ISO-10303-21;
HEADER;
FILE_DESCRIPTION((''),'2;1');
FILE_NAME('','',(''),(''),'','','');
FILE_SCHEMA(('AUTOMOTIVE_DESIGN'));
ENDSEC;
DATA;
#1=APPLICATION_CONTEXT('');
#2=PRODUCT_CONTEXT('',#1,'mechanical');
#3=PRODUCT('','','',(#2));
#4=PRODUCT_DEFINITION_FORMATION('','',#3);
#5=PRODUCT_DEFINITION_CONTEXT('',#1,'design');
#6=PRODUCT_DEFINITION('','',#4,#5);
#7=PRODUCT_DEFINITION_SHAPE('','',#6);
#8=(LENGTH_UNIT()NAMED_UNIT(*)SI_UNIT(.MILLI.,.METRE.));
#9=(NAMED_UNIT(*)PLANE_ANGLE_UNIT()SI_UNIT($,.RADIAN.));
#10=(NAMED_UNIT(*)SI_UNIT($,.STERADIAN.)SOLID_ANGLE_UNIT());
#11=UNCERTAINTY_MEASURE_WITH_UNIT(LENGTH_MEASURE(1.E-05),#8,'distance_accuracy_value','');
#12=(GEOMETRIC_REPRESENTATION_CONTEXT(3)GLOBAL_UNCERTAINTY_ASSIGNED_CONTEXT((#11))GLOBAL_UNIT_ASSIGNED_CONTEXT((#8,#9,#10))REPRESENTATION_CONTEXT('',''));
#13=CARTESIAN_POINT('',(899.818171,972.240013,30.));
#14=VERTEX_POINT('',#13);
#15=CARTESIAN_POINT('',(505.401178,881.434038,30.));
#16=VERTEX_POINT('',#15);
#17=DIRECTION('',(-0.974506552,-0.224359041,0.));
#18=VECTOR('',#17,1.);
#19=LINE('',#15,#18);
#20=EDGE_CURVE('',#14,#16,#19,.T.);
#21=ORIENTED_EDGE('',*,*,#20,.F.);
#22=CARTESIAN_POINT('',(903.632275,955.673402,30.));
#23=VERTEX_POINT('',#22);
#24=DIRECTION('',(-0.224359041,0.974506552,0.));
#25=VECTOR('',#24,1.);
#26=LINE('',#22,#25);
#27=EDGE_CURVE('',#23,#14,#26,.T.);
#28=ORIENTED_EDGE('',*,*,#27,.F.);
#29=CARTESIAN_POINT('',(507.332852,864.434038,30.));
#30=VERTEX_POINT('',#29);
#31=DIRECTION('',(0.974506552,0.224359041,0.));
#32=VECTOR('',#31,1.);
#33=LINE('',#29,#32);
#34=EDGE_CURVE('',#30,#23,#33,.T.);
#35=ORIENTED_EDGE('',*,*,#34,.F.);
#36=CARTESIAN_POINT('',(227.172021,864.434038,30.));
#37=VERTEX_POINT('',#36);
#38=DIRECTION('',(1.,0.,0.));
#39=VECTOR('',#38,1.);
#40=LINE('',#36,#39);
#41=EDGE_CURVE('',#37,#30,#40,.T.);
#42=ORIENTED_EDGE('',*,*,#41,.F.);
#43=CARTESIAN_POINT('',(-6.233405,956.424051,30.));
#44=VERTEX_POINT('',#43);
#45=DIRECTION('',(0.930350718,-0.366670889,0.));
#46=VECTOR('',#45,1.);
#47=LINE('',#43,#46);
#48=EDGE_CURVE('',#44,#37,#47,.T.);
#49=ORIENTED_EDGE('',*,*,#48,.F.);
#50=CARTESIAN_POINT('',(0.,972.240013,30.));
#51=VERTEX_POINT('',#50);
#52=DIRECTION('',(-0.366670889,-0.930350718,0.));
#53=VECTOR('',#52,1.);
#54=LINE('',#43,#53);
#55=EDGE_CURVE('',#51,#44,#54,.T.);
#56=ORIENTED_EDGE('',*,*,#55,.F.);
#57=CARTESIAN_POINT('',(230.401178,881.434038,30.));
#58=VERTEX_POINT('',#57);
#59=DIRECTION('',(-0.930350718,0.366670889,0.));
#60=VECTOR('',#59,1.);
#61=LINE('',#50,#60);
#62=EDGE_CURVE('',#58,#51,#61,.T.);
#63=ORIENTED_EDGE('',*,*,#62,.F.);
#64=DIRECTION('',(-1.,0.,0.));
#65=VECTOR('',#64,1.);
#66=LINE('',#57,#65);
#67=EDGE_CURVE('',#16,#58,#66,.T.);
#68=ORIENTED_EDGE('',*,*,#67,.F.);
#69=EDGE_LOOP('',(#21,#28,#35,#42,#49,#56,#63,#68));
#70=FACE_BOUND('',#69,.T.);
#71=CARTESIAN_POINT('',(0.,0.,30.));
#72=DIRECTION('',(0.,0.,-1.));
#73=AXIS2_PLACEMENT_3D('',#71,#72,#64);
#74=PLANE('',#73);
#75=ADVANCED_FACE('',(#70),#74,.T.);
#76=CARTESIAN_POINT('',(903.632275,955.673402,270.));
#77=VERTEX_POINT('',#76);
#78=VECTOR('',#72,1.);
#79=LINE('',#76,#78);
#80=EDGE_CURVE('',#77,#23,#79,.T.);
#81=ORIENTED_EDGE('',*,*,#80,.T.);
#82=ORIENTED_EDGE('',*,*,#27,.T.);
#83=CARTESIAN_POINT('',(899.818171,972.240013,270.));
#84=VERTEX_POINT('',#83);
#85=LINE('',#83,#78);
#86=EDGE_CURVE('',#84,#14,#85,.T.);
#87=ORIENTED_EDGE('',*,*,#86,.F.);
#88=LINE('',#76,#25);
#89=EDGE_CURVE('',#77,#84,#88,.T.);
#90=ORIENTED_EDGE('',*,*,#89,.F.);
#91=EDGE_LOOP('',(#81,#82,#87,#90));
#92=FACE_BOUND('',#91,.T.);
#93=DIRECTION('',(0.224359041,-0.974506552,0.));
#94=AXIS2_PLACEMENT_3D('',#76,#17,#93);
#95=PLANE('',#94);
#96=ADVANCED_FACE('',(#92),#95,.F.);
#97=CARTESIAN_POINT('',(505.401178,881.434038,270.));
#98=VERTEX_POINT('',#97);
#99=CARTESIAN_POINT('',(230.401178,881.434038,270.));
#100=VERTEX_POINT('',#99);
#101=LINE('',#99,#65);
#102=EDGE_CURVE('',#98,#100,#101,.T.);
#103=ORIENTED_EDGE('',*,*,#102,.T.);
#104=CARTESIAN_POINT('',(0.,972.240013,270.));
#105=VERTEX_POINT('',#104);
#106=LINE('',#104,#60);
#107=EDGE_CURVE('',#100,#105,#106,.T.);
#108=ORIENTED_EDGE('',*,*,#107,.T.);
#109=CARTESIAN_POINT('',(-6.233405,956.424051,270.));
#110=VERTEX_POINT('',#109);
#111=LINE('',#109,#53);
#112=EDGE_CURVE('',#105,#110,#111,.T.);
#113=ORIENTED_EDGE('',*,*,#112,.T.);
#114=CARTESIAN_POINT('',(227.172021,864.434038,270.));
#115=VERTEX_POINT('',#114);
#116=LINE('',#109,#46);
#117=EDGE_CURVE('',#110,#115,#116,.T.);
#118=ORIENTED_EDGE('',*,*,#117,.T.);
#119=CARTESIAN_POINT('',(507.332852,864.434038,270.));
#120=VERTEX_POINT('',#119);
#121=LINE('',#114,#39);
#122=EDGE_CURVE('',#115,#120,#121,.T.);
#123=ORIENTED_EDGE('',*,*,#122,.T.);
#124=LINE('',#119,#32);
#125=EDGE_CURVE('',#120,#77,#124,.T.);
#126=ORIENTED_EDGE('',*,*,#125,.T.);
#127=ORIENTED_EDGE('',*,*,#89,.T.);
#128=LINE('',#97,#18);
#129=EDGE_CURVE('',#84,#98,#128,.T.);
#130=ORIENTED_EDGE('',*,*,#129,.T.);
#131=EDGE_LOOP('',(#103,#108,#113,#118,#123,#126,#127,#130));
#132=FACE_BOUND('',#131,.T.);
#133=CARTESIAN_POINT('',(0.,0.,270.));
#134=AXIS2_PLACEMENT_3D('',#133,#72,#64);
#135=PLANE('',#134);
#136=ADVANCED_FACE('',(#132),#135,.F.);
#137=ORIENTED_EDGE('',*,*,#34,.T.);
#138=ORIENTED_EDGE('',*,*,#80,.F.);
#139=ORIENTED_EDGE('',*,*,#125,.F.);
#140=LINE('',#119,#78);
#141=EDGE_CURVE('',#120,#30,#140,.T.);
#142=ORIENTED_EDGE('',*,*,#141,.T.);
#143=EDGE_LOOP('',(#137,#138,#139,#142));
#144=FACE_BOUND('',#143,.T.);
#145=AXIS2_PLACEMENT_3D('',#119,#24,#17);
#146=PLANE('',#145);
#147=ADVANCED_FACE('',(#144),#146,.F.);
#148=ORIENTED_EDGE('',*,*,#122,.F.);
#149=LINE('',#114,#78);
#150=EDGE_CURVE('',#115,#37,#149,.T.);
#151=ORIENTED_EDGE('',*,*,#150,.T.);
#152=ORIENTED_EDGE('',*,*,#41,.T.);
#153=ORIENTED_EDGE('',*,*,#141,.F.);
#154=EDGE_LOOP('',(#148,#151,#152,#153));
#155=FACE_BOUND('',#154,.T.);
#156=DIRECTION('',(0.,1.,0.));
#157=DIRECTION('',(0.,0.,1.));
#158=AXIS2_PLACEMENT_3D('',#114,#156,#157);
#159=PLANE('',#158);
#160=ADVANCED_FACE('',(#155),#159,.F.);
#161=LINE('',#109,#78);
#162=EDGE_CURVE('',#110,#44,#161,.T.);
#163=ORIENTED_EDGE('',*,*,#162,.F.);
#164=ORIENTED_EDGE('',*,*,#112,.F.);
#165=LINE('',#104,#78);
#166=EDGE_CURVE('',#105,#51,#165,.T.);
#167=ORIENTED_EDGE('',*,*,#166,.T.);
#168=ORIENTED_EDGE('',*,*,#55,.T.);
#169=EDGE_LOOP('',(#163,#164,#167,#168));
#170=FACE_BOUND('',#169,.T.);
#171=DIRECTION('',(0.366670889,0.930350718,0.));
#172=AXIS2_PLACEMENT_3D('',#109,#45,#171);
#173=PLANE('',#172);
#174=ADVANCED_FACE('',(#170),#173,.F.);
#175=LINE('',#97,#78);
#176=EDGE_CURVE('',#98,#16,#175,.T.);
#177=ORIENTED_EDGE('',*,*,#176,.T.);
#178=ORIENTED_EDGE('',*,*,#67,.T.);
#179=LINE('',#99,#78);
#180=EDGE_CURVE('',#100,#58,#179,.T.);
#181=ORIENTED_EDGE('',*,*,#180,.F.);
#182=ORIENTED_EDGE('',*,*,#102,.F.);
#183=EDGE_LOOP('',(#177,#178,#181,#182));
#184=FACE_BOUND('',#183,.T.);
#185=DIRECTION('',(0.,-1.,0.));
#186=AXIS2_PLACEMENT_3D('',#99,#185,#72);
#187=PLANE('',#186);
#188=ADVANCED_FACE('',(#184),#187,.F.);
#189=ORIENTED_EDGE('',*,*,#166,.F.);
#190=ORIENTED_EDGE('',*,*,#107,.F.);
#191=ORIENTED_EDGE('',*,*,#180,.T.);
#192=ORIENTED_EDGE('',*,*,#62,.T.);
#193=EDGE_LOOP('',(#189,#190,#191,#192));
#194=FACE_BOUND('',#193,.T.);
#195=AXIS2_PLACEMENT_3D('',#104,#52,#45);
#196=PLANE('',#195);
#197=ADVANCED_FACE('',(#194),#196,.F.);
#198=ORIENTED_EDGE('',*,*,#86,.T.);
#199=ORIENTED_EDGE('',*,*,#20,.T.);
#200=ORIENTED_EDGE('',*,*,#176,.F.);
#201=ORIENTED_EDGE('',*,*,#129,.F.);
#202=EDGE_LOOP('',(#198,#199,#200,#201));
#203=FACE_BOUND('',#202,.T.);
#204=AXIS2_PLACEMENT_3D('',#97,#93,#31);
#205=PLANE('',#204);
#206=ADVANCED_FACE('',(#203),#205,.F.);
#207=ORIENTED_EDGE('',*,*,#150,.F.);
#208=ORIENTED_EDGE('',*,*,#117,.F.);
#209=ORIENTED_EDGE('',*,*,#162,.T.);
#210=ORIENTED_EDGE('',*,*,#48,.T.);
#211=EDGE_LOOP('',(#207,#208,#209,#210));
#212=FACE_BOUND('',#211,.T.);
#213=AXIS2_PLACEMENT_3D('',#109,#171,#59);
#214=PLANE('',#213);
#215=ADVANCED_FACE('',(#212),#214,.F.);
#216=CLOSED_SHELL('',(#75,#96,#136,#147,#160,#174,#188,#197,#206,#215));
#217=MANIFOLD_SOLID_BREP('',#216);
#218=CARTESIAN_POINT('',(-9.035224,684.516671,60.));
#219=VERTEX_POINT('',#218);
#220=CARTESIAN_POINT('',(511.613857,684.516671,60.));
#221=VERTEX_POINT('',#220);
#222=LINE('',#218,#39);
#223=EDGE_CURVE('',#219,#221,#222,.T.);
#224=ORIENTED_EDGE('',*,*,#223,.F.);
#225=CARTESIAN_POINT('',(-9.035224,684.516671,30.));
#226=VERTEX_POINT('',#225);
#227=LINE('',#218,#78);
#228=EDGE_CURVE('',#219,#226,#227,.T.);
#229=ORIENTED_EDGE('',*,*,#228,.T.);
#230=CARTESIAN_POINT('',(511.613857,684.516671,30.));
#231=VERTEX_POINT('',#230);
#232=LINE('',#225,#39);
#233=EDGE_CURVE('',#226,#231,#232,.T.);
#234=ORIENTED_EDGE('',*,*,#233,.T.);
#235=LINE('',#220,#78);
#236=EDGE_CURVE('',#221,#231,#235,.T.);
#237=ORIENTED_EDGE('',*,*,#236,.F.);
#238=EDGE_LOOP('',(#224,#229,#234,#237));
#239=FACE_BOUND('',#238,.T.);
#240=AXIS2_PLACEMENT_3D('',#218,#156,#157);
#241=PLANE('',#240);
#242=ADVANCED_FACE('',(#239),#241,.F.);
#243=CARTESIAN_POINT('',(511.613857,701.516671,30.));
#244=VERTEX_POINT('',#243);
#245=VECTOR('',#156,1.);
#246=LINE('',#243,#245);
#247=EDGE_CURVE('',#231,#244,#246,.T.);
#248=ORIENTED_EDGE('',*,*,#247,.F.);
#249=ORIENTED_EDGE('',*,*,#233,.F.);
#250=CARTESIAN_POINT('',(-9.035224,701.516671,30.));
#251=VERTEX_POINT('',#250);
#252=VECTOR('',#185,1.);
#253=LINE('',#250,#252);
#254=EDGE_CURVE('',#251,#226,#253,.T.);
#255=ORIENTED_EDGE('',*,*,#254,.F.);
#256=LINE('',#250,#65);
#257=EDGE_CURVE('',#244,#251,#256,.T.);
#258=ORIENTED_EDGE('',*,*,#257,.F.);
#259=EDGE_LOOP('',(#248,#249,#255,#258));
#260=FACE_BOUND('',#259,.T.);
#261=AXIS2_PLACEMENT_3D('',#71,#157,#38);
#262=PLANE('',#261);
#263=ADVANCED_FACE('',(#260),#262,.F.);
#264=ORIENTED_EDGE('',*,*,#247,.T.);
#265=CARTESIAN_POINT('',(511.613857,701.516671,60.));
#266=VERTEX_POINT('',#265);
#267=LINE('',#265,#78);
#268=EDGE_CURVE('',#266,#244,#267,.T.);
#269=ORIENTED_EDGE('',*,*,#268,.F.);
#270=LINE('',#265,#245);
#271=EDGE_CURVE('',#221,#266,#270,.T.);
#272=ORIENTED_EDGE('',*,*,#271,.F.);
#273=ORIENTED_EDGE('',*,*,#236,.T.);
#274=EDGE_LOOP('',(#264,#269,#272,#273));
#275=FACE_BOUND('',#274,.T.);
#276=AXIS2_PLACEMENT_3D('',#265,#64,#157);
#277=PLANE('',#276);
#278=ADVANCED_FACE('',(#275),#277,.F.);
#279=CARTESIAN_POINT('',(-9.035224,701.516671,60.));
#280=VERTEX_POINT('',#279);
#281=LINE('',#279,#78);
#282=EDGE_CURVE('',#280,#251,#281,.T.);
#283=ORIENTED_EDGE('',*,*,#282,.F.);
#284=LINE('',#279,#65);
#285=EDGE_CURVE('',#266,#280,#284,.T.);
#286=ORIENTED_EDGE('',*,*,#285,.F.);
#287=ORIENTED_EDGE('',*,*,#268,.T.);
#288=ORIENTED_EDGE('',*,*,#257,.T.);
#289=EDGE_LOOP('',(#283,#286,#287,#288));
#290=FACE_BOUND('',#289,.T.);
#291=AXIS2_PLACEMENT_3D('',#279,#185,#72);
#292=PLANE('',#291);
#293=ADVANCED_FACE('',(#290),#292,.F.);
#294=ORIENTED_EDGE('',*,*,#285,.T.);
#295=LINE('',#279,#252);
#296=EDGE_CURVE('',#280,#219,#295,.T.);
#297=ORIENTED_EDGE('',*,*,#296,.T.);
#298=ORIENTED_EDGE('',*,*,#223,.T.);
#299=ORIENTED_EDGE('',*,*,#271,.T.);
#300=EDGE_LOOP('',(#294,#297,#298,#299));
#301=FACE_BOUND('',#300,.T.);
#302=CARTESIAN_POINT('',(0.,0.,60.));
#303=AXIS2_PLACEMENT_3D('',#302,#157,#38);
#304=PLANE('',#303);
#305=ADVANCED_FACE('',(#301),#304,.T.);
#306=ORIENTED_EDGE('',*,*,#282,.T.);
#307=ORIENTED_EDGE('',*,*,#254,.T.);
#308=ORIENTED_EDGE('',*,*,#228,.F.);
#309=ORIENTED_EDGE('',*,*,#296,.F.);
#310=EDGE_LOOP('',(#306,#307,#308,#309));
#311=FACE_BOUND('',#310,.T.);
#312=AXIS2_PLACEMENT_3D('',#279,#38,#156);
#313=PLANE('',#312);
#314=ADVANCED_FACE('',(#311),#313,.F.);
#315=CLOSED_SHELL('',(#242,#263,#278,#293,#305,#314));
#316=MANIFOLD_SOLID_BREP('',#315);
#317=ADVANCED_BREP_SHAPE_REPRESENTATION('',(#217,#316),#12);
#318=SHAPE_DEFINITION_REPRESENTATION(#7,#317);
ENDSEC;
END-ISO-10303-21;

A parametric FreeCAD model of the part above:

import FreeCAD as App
import Part
import Sketcher

V = App.Vector


def add_polygon(sketch, points):
    """Adds a closed chain of lines whose ends are joined by coincident constraints."""
    first, n = sketch.GeometryCount, len(points)
    for a, b in zip(points, points[1:] + points[:1]):
        sketch.addGeometry(Part.LineSegment(App.Vector(*a, 0), App.Vector(*b, 0)), False)
    for i in range(n):
        sketch.addConstraint(Sketcher.Constraint("Coincident", first + i, 2, first + (i + 1) % n, 1))

doc = App.newDocument("Part")
body = doc.addObject("PartDesign::Body", "Body")

# Sketch on XY plane
sketch1 = doc.addObject("Sketcher::SketchObject", "Sketch")
body.addObject(sketch1)
sketch1.AttachmentSupport = (doc.XY_Plane, [""])
sketch1.MapMode = "FlatFace"
sketch1.AttachmentOffset = App.Placement(V(0, 0, 30), App.Rotation())
add_polygon(sketch1, [(-9, 702), (-9, 685), (512, 685), (512, 702)])  # lines 0-3
sketch1.addConstraint([
    Sketcher.Constraint("Vertical", 0),
    Sketcher.Constraint("Horizontal", 1),
    Sketcher.Constraint("Vertical", 2),
    Sketcher.Constraint("Horizontal", 3),
    Sketcher.Constraint("DistanceY", 0, 2, 0, 1, 17.0),
    Sketcher.Constraint("DistanceX", 1, 1, 1, 2, 520.649081),
    Sketcher.Constraint("DistanceY", -1, 1, 0, 2, 684.516671),
    Sketcher.Constraint("DistanceX", 0, 2, -1, 1, 9.035224),
])
pad1 = doc.addObject("PartDesign::Pad", "Pad")
body.addObject(pad1)
pad1.Profile = sketch1
pad1.Length = 30
body2 = doc.addObject("PartDesign::Body", "Body001")

# Sketch on XY plane
sketch2 = doc.addObject("Sketcher::SketchObject", "Sketch001")
body2.addObject(sketch2)
sketch2.AttachmentSupport = (doc.getObject("XY_Plane001"), [""])
sketch2.MapMode = "FlatFace"
sketch2.AttachmentOffset = App.Placement(V(0, 0, 30), App.Rotation())
add_polygon(sketch2, [(230, 881), (0, 972), (-6, 956), (227, 864), (507, 864), (904, 956), (900, 972), (505, 881)])  # lines 0-7
sketch2.addConstraint([
    Sketcher.Constraint("Horizontal", 3),
    Sketcher.Constraint("Horizontal", 7),
    Sketcher.Constraint("PointOnObject", 0, 2, -2),
    Sketcher.Constraint("Perpendicular", 0, 1),
    Sketcher.Constraint("Perpendicular", 1, 2),
    Sketcher.Constraint("Perpendicular", 4, 5),
    Sketcher.Constraint("Perpendicular", 5, 6),
    Sketcher.Constraint("Horizontal", 0, 2, 5, 2),
    Sketcher.Constraint("Equal", 1, 5),
    Sketcher.Constraint("DistanceX", 7, 2, 7, 1, 275.0),
    Sketcher.Constraint("Distance", 1, 17.0),
    Sketcher.Constraint("DistanceY", 3, 2, 6, 2, 17.0),
    Sketcher.Constraint("DistanceX", 3, 1, 3, 2, 280.160831),
    Sketcher.Constraint("DistanceY", -1, 1, 4, 2, 955.673402),
    Sketcher.Constraint("Distance", 0, 247.649809),
    Sketcher.Constraint("Distance", 4, 406.666761),
])
pad2 = doc.addObject("PartDesign::Pad", "Pad001")
body2.addObject(pad2)
pad2.Profile = sketch2
pad2.Length = 240

doc.recompute()
